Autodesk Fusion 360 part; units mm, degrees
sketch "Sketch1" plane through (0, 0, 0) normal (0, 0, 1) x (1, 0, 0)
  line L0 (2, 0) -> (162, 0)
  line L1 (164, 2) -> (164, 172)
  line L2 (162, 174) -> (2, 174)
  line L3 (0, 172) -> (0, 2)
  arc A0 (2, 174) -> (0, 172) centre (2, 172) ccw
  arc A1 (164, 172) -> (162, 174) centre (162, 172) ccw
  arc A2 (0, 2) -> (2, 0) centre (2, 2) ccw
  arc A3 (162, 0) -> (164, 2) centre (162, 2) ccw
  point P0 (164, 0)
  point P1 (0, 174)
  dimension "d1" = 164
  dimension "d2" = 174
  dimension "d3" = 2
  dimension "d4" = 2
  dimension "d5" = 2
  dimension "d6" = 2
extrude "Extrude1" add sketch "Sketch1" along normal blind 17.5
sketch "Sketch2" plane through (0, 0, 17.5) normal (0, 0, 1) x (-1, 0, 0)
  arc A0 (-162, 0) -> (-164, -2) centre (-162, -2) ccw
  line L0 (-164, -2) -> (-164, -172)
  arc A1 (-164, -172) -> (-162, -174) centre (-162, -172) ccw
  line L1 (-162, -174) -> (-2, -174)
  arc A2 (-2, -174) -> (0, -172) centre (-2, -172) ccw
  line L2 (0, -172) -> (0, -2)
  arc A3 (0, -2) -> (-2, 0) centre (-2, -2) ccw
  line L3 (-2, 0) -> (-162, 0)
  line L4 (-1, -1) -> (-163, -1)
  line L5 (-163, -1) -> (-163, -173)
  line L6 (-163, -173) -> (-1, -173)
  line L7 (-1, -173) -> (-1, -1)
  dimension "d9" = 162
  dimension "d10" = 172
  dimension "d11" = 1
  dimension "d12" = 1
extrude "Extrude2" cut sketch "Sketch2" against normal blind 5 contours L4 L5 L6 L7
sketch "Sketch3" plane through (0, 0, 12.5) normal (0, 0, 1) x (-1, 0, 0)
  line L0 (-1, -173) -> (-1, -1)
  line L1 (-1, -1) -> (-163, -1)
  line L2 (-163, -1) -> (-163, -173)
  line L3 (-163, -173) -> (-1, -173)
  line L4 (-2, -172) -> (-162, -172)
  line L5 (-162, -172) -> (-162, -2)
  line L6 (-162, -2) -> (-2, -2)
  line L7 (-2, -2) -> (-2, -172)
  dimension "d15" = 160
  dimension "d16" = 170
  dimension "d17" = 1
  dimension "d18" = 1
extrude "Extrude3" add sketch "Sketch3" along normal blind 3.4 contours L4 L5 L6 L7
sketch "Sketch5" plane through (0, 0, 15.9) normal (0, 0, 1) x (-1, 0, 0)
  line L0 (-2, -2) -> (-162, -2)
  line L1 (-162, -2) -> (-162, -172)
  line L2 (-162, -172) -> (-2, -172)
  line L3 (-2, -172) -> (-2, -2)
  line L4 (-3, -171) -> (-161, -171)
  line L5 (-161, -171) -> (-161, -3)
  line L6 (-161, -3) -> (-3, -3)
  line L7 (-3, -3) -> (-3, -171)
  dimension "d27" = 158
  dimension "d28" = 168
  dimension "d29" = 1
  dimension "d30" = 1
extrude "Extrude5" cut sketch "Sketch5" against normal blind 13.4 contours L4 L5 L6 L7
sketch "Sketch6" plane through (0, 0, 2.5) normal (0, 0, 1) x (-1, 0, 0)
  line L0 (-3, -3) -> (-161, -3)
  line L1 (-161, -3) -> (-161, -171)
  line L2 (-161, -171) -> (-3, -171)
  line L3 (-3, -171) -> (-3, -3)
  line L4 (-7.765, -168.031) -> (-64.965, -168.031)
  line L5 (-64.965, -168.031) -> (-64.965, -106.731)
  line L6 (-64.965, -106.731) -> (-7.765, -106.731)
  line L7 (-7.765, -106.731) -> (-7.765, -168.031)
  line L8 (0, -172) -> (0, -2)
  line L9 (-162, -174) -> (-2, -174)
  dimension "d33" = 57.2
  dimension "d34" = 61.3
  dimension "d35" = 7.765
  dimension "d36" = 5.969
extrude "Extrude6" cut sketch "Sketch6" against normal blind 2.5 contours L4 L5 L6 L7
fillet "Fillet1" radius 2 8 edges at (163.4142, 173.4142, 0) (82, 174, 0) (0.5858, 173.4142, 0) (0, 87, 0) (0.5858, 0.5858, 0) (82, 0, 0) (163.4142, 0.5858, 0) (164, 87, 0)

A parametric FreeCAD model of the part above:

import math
import FreeCAD as App
import Part
import Sketcher

V = App.Vector


def edges_at(feature, points):
    """Names of the edges that pass closest to the given points."""
    edges = feature.Shape.Edges
    near = lambda p: min(range(len(edges)), key=lambda i: edges[i].distToShape(Part.Vertex(*p))[0])
    return sorted({f"Edge{near(p) + 1}" for p in points})


def add_polygon(sketch, points):
    """Adds a closed chain of lines whose ends are joined by coincident constraints."""
    first, n = sketch.GeometryCount, len(points)
    for a, b in zip(points, points[1:] + points[:1]):
        sketch.addGeometry(Part.LineSegment(App.Vector(*a, 0), App.Vector(*b, 0)), False)
    for i in range(n):
        sketch.addConstraint(Sketcher.Constraint("Coincident", first + i, 2, first + (i + 1) % n, 1))

doc = App.newDocument("Part")
body = doc.addObject("PartDesign::Body", "Body")

# Sketch on XY plane
sketch1 = body.newObject("Sketcher::SketchObject", "Sketch")
sketch1.AttachmentSupport = (doc.getObject("XY_Plane"), [""])
sketch1.MapMode = "FlatFace"
sketch1.addGeometry(Part.ArcOfCircle(Part.Circle(V(2, 2, 0), V(0, 0, 1), 2), math.radians(180), math.radians(270)), False)
sketch1.addGeometry(Part.LineSegment(V(2, 0, 0), V(162, 0, 0)), False)
sketch1.addGeometry(Part.ArcOfCircle(Part.Circle(V(162, 2, 0), V(0, 0, 1), 2), math.radians(-90), math.radians(0)), False)
sketch1.addGeometry(Part.LineSegment(V(164, 2, 0), V(164, 172, 0)), False)
sketch1.addGeometry(Part.ArcOfCircle(Part.Circle(V(162, 172, 0), V(0, 0, 1), 2), math.radians(0), math.radians(90)), False)
sketch1.addGeometry(Part.LineSegment(V(162, 174, 0), V(2, 174, 0)), False)
sketch1.addGeometry(Part.ArcOfCircle(Part.Circle(V(2, 172, 0), V(0, 0, 1), 2), math.radians(90), math.radians(180)), False)
sketch1.addGeometry(Part.LineSegment(V(0, 172, 0), V(0, 2, 0)), False)
sketch1.addConstraint(Sketcher.Constraint("Tangent", 0, 2, 1, 1))
sketch1.addConstraint(Sketcher.Constraint("Tangent", 1, 2, 2, 1))
sketch1.addConstraint(Sketcher.Constraint("Tangent", 2, 2, 3, 1))
sketch1.addConstraint(Sketcher.Constraint("Tangent", 3, 2, 4, 1))
sketch1.addConstraint(Sketcher.Constraint("Tangent", 4, 2, 5, 1))
sketch1.addConstraint(Sketcher.Constraint("Tangent", 5, 2, 6, 1))
sketch1.addConstraint(Sketcher.Constraint("Tangent", 6, 2, 7, 1))
sketch1.addConstraint(Sketcher.Constraint("Tangent", 7, 2, 0, 1))
sketch1.addConstraint(Sketcher.Constraint("Horizontal", 1))
sketch1.addConstraint(Sketcher.Constraint("Vertical", 3))
sketch1.addConstraint(Sketcher.Constraint("Horizontal", 5))
sketch1.addConstraint(Sketcher.Constraint("Vertical", 7))
sketch1.addConstraint(Sketcher.Constraint("Equal", 0, 2))
sketch1.addConstraint(Sketcher.Constraint("Equal", 2, 4))
sketch1.addConstraint(Sketcher.Constraint("Equal", 4, 6))
sketch1.addConstraint(Sketcher.Constraint("PointOnObject", 0, 2, -1))
sketch1.addConstraint(Sketcher.Constraint("PointOnObject", 6, 2, -2))
sketch1.addConstraint(Sketcher.Constraint("Radius", 0, 2.0))
sketch1.addConstraint(Sketcher.Constraint("DistanceX", -1, 1, 2, 2, 164.0))
sketch1.addConstraint(Sketcher.Constraint("DistanceY", -1, 1, 4, 2, 174.0))
pad1 = body.newObject("PartDesign::Pad", "Pad")
pad1.Profile = sketch1
pad1.Length = 17.5

# Sketch on XY plane
sketch2 = body.newObject("Sketcher::SketchObject", "Sketch001")
sketch2.AttachmentSupport = (doc.getObject("XY_Plane"), [""])
sketch2.MapMode = "FlatFace"
sketch2.AttachmentOffset = App.Placement(V(0, 0, 17.5), App.Rotation())
add_polygon(sketch2, [(1, 173), (1, 1), (163, 1), (163, 173)])  # lines 0-3
sketch2.addConstraint(Sketcher.Constraint("Vertical", 0))
sketch2.addConstraint(Sketcher.Constraint("Horizontal", 1))
sketch2.addConstraint(Sketcher.Constraint("Vertical", 2))
sketch2.addConstraint(Sketcher.Constraint("Horizontal", 3))
sketch2.addConstraint(Sketcher.Constraint("DistanceX", 1, 1, 1, 2, 162.0))
sketch2.addConstraint(Sketcher.Constraint("DistanceY", 0, 2, 0, 1, 172.0))
sketch2.addConstraint(Sketcher.Constraint("DistanceX", -1, 1, 0, 2, 1.0))
sketch2.addConstraint(Sketcher.Constraint("DistanceY", -1, 1, 0, 2, 1.0))
pocket1 = body.newObject("PartDesign::Pocket", "Pocket")
pocket1.Profile = sketch2
pocket1.Length = 5

# Sketch on XY plane
sketch3 = body.newObject("Sketcher::SketchObject", "Sketch002")
sketch3.AttachmentSupport = (doc.getObject("XY_Plane"), [""])
sketch3.MapMode = "FlatFace"
sketch3.AttachmentOffset = App.Placement(V(0, 0, 12.5), App.Rotation())
add_polygon(sketch3, [(162, 172), (2, 172), (2, 2), (162, 2)])  # lines 0-3
sketch3.addConstraint(Sketcher.Constraint("Horizontal", 0))
sketch3.addConstraint(Sketcher.Constraint("Vertical", 1))
sketch3.addConstraint(Sketcher.Constraint("Horizontal", 2))
sketch3.addConstraint(Sketcher.Constraint("Vertical", 3))
sketch3.addConstraint(Sketcher.Constraint("DistanceX", 0, 2, 0, 1, 160.0))
sketch3.addConstraint(Sketcher.Constraint("DistanceY", 1, 2, 1, 1, 170.0))
sketch3.addConstraint(Sketcher.Constraint("DistanceX", -1, 1, 0, 2, 2.0))
sketch3.addConstraint(Sketcher.Constraint("DistanceY", -1, 1, 0, 2, 172.0))
pad2 = body.newObject("PartDesign::Pad", "Pad001")
pad2.Profile = sketch3
pad2.Length = 3.4

# Sketch on XY plane
sketch4 = body.newObject("Sketcher::SketchObject", "Sketch003")
sketch4.AttachmentSupport = (doc.getObject("XY_Plane"), [""])
sketch4.MapMode = "FlatFace"
sketch4.AttachmentOffset = App.Placement(V(0, 0, 15.9), App.Rotation())
add_polygon(sketch4, [(161, 171), (3, 171), (3, 3), (161, 3)])  # lines 0-3
sketch4.addConstraint(Sketcher.Constraint("Horizontal", 0))
sketch4.addConstraint(Sketcher.Constraint("Vertical", 1))
sketch4.addConstraint(Sketcher.Constraint("Horizontal", 2))
sketch4.addConstraint(Sketcher.Constraint("Vertical", 3))
sketch4.addConstraint(Sketcher.Constraint("DistanceX", 0, 2, 0, 1, 158.0))
sketch4.addConstraint(Sketcher.Constraint("DistanceY", 1, 2, 1, 1, 168.0))
sketch4.addConstraint(Sketcher.Constraint("DistanceX", -1, 1, 0, 2, 3.0))
sketch4.addConstraint(Sketcher.Constraint("DistanceY", -1, 1, 0, 2, 171.0))
pocket2 = body.newObject("PartDesign::Pocket", "Pocket001")
pocket2.Profile = sketch4
pocket2.Length = 13.4

# Sketch on XY plane
sketch5 = body.newObject("Sketcher::SketchObject", "Sketch004")
sketch5.AttachmentSupport = (doc.getObject("XY_Plane"), [""])
sketch5.MapMode = "FlatFace"
sketch5.AttachmentOffset = App.Placement(V(0, 0, 2.5), App.Rotation())
add_polygon(sketch5, [(65, 168), (8, 168), (8, 107), (65, 107)])  # lines 0-3
sketch5.addConstraint(Sketcher.Constraint("Horizontal", 0))
sketch5.addConstraint(Sketcher.Constraint("Vertical", 1))
sketch5.addConstraint(Sketcher.Constraint("Horizontal", 2))
sketch5.addConstraint(Sketcher.Constraint("Vertical", 3))
sketch5.addConstraint(Sketcher.Constraint("DistanceX", 0, 2, 0, 1, 57.2))
sketch5.addConstraint(Sketcher.Constraint("DistanceY", 1, 2, 1, 1, 61.3))
sketch5.addConstraint(Sketcher.Constraint("DistanceX", -1, 1, 0, 2, 7.765))
sketch5.addConstraint(Sketcher.Constraint("DistanceY", -1, 1, 0, 2, 168.031))
pocket3 = body.newObject("PartDesign::Pocket", "Pocket002")
pocket3.Profile = sketch5
pocket3.Length = 2.5
doc.recompute()

fillet = body.newObject("PartDesign::Fillet", "Fillet")
fillet.Base = (pocket3, edges_at(pocket3, [
    (163.414, 173.414, 0),
    (82, 174, 0),
    (0.586, 173.414, 0),
    (0, 87, 0),
    (0.586, 0.586, 0),
    (82, 0, 0),
    (163.414, 0.586, 0),
    (164, 87, 0),
]))
fillet.Radius = 2

doc.recompute()
